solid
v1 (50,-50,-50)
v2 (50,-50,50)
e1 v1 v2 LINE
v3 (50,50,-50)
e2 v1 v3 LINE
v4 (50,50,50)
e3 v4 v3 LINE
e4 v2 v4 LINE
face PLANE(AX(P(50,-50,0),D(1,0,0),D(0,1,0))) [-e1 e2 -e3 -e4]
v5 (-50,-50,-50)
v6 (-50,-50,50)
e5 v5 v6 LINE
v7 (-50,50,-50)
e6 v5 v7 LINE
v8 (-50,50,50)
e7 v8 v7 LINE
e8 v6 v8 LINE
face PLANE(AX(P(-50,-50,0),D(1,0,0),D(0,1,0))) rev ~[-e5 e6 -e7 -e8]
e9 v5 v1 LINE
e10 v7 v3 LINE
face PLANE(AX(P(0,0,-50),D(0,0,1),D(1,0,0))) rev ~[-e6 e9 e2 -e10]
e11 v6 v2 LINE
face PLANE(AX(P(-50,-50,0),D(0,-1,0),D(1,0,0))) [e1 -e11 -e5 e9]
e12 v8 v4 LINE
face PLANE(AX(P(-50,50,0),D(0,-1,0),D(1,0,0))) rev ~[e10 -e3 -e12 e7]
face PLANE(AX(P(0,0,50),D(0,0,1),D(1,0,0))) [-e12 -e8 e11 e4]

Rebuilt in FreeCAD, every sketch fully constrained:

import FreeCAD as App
import Part
import Sketcher


def add_polygon(sketch, points):
    """Adds a closed chain of lines whose ends are joined by coincident constraints."""
    first, n = sketch.GeometryCount, len(points)
    for a, b in zip(points, points[1:] + points[:1]):
        sketch.addGeometry(Part.LineSegment(App.Vector(*a, 0), App.Vector(*b, 0)), False)
    for i in range(n):
        sketch.addConstraint(Sketcher.Constraint("Coincident", first + i, 2, first + (i + 1) % n, 1))

doc = App.newDocument("Part")
params = doc.addObject("Spreadsheet::Sheet", "Params")
for row, (alias, value) in enumerate([
    ("sketch1_width", "100 mm"),
    ("pad1_length", "100 mm"),
], start=1):
    params.set(f"A{row}", alias)
    params.set(f"B{row}", "=" + value)
    params.setAlias(f"B{row}", alias)

body = doc.addObject("PartDesign::Body", "Body")

# Sketch on XY plane
sketch1 = doc.addObject("Sketcher::SketchObject", "Sketch")
body.addObject(sketch1)
sketch1.AttachmentSupport = (doc.XY_Plane, [""])
sketch1.MapMode = "FlatFace"
add_polygon(sketch1, [(-50, 50), (-50, -50), (50, -50), (50, 50)])  # lines 0-3
sketch1.addConstraint([
    Sketcher.Constraint("Vertical", 0),
    Sketcher.Constraint("Horizontal", 1),
    Sketcher.Constraint("Vertical", 2),
    Sketcher.Constraint("Horizontal", 3),
    Sketcher.Constraint("Symmetric", 0, 2, 2, 2, -1, 1),
    Sketcher.Constraint("Equal", 3, 0),
    Sketcher.Constraint("DistanceX", 1, 1, 1, 2, 100.0),
])
sketch1.setExpression("Constraints[10]", "Params.sketch1_width")
pad1 = doc.addObject("PartDesign::Pad", "Pad")
body.addObject(pad1)
pad1.Profile = sketch1
pad1.setExpression("Length", "Params.pad1_length")
pad1.Midplane = True

doc.recompute()
